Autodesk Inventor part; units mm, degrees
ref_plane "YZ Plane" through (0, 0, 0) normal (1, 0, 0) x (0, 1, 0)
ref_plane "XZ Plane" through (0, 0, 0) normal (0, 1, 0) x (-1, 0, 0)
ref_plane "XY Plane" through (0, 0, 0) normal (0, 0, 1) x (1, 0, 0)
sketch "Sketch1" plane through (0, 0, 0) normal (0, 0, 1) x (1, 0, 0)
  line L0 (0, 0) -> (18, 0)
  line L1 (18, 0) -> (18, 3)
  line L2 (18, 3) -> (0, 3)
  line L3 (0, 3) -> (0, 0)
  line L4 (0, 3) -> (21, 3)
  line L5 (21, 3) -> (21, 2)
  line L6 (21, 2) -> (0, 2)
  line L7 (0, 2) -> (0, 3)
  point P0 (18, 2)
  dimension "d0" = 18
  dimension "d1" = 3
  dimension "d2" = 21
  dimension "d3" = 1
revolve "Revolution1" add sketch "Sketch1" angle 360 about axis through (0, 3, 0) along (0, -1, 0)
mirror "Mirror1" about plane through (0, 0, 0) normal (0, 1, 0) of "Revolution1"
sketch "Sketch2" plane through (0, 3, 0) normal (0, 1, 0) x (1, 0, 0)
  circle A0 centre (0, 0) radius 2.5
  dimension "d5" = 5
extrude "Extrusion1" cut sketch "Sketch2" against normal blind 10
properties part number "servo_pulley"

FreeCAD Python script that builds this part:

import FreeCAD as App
import Part
import Sketcher
from FreeCAD import Vector


def add_polygon(sketch, points):
    """Adds a closed chain of lines whose ends are joined by coincident constraints."""
    first, n = sketch.GeometryCount, len(points)
    for a, b in zip(points, points[1:] + points[:1]):
        sketch.addGeometry(Part.LineSegment(App.Vector(*a, 0), App.Vector(*b, 0)), False)
    for i in range(n):
        sketch.addConstraint(Sketcher.Constraint("Coincident", first + i, 2, first + (i + 1) % n, 1))

doc = App.newDocument("Part")
body = doc.addObject("PartDesign::Body", "Body")

sketch1 = body.newObject("Sketcher::SketchObject", "Sketch")
sketch1.AttachmentSupport = (doc.getObject("XY_Plane"), [""])
sketch1.MapMode = "FlatFace"
add_polygon(sketch1, [(0, 0), (18, 0), (18, 2), (21, 2), (21, 3), (0, 3)])
sketch1.addConstraint(Sketcher.Constraint("Horizontal", 0))
sketch1.addConstraint(Sketcher.Constraint("Vertical", 1))
sketch1.addConstraint(Sketcher.Constraint("Horizontal", 2))
sketch1.addConstraint(Sketcher.Constraint("Vertical", 3))
sketch1.addConstraint(Sketcher.Constraint("Horizontal", 4))
sketch1.addConstraint(Sketcher.Constraint("Vertical", 5))
sketch1.addConstraint(Sketcher.Constraint("Coincident", 5, 2, -1, 1))
sketch1.addConstraint(Sketcher.Constraint("Equal", 2, 5))
sketch1.addConstraint(Sketcher.Constraint("DistanceX", 0, 1, 0, 2, 18.0))
sketch1.addConstraint(Sketcher.Constraint("DistanceX", 2, 1, 2, 2, 3.0))
sketch1.addConstraint(Sketcher.Constraint("DistanceY", 3, 1, 3, 2, 1.0))
revolution = body.newObject("PartDesign::Revolution", "Revolution")
revolution.Profile = sketch1
revolution.ReferenceAxis = (sketch1, ["V_Axis"])
revolution.Angle = 360
doc.recompute()

mirrored = body.newObject("PartDesign::Mirrored", "Mirrored")
mirrored.Originals = [revolution]
mirrored.MirrorPlane = (doc.getObject("XZ_Plane"), [""])
body.Tip = mirrored

sketch2 = body.newObject("Sketcher::SketchObject", "Sketch001")
sketch2.AttachmentSupport = (doc.getObject("XZ_Plane"), [""])
sketch2.MapMode = "FlatFace"
sketch2.AttachmentOffset = App.Placement(Vector(0, 0, -3), App.Rotation())
sketch2.addGeometry(Part.Circle(Vector(0, 0, 0), Vector(0, 0, 1), 2.5), False)
sketch2.addConstraint(Sketcher.Constraint("Coincident", 0, 3, -1, 1))
sketch2.addConstraint(Sketcher.Constraint("Diameter", 0, 5.0))
pocket1 = body.newObject("PartDesign::Pocket", "Pocket")
pocket1.Profile = sketch2
pocket1.Length = 10
pocket1.Reversed = True

doc.recompute()
